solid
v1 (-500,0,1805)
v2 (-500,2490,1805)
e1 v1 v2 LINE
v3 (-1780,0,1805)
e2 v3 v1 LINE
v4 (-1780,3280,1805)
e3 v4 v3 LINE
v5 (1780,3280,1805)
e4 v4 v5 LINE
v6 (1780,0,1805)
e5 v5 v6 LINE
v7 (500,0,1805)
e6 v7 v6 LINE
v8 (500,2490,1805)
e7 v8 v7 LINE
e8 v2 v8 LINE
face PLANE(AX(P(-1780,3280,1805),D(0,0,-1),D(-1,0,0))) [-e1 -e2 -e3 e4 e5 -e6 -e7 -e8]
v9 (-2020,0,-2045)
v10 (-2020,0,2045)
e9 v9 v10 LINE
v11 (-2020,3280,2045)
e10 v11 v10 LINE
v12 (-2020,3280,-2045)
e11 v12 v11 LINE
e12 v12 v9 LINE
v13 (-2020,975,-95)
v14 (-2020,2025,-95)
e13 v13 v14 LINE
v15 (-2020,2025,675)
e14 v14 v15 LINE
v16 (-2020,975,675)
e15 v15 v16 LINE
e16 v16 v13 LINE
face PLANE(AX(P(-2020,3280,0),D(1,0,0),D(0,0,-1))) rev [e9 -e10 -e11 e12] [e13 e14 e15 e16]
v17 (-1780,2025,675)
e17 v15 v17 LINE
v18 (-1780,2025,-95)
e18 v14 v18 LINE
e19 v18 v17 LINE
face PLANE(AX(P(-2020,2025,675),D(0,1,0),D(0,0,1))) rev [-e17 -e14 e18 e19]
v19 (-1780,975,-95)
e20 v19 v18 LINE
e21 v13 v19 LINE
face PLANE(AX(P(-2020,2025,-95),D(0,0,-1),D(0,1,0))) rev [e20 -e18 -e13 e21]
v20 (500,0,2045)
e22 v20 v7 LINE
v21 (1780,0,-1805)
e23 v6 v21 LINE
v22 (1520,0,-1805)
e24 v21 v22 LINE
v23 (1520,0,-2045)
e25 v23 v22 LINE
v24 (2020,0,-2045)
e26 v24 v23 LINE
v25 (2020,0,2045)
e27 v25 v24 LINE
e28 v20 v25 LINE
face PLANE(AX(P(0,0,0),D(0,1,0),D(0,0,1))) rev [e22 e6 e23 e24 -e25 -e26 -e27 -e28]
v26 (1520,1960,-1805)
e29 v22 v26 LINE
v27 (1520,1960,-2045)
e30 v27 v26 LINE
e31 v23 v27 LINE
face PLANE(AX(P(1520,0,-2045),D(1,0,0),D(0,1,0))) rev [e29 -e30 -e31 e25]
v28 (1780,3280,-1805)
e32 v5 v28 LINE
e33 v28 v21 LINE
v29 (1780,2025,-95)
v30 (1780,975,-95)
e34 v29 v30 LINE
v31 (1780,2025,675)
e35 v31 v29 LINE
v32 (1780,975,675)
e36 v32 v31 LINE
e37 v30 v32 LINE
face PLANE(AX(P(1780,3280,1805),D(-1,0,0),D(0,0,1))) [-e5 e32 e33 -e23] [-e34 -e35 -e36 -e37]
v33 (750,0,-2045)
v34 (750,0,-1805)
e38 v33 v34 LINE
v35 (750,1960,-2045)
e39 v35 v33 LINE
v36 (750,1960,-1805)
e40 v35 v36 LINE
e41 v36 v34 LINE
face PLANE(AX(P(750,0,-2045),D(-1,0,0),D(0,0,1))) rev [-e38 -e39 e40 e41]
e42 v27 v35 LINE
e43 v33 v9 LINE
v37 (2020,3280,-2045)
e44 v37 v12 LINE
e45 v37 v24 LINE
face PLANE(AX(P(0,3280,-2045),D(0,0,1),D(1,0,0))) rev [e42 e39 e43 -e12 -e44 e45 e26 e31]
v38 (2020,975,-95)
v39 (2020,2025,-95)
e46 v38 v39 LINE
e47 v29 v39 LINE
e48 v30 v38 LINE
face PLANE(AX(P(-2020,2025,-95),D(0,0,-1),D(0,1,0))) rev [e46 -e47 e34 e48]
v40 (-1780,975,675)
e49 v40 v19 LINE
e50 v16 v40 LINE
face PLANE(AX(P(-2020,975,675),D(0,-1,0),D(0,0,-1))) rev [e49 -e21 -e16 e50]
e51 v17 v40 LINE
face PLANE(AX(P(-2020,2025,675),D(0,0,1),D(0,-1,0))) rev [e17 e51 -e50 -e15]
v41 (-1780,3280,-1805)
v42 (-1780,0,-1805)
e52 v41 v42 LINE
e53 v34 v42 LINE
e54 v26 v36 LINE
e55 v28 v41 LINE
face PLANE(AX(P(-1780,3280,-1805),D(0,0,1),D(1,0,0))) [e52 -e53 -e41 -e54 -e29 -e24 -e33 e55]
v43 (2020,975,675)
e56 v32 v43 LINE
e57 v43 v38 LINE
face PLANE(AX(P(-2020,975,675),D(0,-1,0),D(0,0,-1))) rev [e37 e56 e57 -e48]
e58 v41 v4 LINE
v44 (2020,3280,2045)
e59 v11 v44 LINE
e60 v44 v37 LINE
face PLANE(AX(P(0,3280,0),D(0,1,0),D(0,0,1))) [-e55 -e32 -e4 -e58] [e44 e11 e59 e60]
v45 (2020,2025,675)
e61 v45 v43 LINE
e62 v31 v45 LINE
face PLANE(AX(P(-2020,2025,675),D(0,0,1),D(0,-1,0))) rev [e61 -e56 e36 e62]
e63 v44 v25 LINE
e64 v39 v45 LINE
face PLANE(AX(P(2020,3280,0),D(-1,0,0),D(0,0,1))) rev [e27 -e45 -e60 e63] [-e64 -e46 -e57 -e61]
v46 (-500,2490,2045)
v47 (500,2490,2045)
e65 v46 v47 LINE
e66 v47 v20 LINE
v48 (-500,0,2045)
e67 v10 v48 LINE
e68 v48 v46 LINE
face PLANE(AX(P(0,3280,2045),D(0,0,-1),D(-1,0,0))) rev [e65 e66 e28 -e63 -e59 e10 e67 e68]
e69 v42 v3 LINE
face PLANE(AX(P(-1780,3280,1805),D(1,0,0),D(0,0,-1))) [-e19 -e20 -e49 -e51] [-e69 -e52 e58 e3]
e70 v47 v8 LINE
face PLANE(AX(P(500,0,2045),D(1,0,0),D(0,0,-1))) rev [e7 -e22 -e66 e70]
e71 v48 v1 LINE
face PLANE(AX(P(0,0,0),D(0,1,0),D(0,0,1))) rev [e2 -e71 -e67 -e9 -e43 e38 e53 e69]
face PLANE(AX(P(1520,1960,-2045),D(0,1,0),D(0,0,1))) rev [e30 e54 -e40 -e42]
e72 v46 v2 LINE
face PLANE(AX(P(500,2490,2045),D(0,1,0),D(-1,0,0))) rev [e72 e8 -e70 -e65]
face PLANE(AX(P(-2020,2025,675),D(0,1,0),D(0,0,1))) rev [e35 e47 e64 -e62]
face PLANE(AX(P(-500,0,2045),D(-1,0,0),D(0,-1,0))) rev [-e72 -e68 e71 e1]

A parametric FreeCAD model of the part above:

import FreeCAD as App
import Part
import Sketcher


def add_polygon(sketch, points):
    """Adds a closed chain of lines whose ends are joined by coincident constraints."""
    first, n = sketch.GeometryCount, len(points)
    for a, b in zip(points, points[1:] + points[:1]):
        sketch.addGeometry(Part.LineSegment(App.Vector(*a, 0), App.Vector(*b, 0)), False)
    for i in range(n):
        sketch.addConstraint(Sketcher.Constraint("Coincident", first + i, 2, first + (i + 1) % n, 1))

doc = App.newDocument("Part")
body = doc.addObject("PartDesign::Body", "Body")

sketch1 = body.newObject("Sketcher::SketchObject", "Sketch")
sketch1.AttachmentSupport = (doc.getObject("XZ_Plane"), [""])
sketch1.MapMode = "FlatFace"
add_polygon(sketch1, [(-2020, -2045), (-2020, 2045), (2020, 2045), (2020, -2045)])
add_polygon(sketch1, [(1780, 1805), (-1780, 1805), (-1780, -1805), (1780, -1805)])
sketch1.addConstraint([
    Sketcher.Constraint("Vertical", 0),
    Sketcher.Constraint("Horizontal", 1),
    Sketcher.Constraint("Vertical", 2),
    Sketcher.Constraint("Horizontal", 3),
    Sketcher.Constraint("Horizontal", 4),
    Sketcher.Constraint("Vertical", 5),
    Sketcher.Constraint("Horizontal", 6),
    Sketcher.Constraint("Vertical", 7),
    Sketcher.Constraint("Symmetric", 0, 2, 2, 2, -1, 1),
    Sketcher.Constraint("Symmetric", 4, 2, 6, 2, -1, 1),
    Sketcher.Constraint("DistanceX", 1, 1, 1, 2, 4040.0),
    Sketcher.Constraint("DistanceX", 4, 2, 4, 1, 3560.0),
    Sketcher.Constraint("DistanceY", 0, 1, 0, 2, 4090.0),
    Sketcher.Constraint("DistanceY", 5, 2, 5, 1, 3610.0),
])
pad1 = body.newObject("PartDesign::Pad", "Pad")
pad1.Profile = sketch1
pad1.Length = 3280
pad1.Reversed = True

sketch2 = body.newObject("Sketcher::SketchObject", "Sketch001")
sketch2.AttachmentSupport = (doc.getObject("XY_Plane"), [""])
sketch2.MapMode = "FlatFace"
sketch2.AttachmentOffset = App.Placement(App.Vector(0, 0, -1805), App.Rotation())
add_polygon(sketch2, [(750, 1960), (750, 0), (1520, 0), (1520, 1960)])
sketch2.addConstraint([
    Sketcher.Constraint("Vertical", 0),
    Sketcher.Constraint("Horizontal", 1),
    Sketcher.Constraint("Vertical", 2),
    Sketcher.Constraint("Horizontal", 3),
    Sketcher.Constraint("PointOnObject", 0, 2, -1),
    Sketcher.Constraint("DistanceX", 1, 1, 1, 2, 770.0),
    Sketcher.Constraint("DistanceY", 0, 2, 0, 1, 1960.0),
    Sketcher.Constraint("DistanceX", -1, 1, 0, 2, 750.0),
])
pocket1 = body.newObject("PartDesign::Pocket", "Pocket")
pocket1.Profile = sketch2
pocket1.Type = "ThroughAll"

sketch3 = body.newObject("Sketcher::SketchObject", "Sketch002")
sketch3.AttachmentSupport = (doc.getObject("XY_Plane"), [""])
sketch3.MapMode = "FlatFace"
sketch3.AttachmentOffset = App.Placement(App.Vector(0, 0, 1805), App.Rotation())
add_polygon(sketch3, [(500, 2490), (500, 0), (-500, 0), (-500, 2490)])
sketch3.addConstraint([
    Sketcher.Constraint("Vertical", 0),
    Sketcher.Constraint("Horizontal", 1),
    Sketcher.Constraint("Vertical", 2),
    Sketcher.Constraint("Horizontal", 3),
    Sketcher.Constraint("Symmetric", 0, 2, 1, 2, -1, 1),
    Sketcher.Constraint("DistanceX", 1, 2, 1, 1, 1000.0),
    Sketcher.Constraint("DistanceY", 0, 2, 0, 1, 2490.0),
])
pocket2 = body.newObject("PartDesign::Pocket", "Pocket001")
pocket2.Profile = sketch3
pocket2.Type = "ThroughAll"
pocket2.Reversed = True

sketch4 = body.newObject("Sketcher::SketchObject", "Sketch003")
sketch4.AttachmentSupport = (doc.getObject("YZ_Plane"), [""])
sketch4.MapMode = "FlatFace"
sketch4.AttachmentOffset = App.Placement(App.Vector(0, 0, -1780), App.Rotation())
add_polygon(sketch4, [(2025, 675), (975, 675), (975, -95), (2025, -95)])
sketch4.addConstraint([
    Sketcher.Constraint("Horizontal", 0),
    Sketcher.Constraint("Vertical", 1),
    Sketcher.Constraint("Horizontal", 2),
    Sketcher.Constraint("Vertical", 3),
    Sketcher.Constraint("DistanceX", 0, 2, 0, 1, 1050.0),
    Sketcher.Constraint("DistanceY", 1, 2, 1, 1, 770.0),
    Sketcher.Constraint("DistanceX", -1, 1, 0, 2, 975.0),
    Sketcher.Constraint("DistanceY", -1, 1, 0, 2, 675.0),
])
pocket3 = body.newObject("PartDesign::Pocket", "Pocket002")
pocket3.Profile = sketch4
pocket3.Type = "ThroughAll"
pocket3.Midplane = True

doc.recompute()
